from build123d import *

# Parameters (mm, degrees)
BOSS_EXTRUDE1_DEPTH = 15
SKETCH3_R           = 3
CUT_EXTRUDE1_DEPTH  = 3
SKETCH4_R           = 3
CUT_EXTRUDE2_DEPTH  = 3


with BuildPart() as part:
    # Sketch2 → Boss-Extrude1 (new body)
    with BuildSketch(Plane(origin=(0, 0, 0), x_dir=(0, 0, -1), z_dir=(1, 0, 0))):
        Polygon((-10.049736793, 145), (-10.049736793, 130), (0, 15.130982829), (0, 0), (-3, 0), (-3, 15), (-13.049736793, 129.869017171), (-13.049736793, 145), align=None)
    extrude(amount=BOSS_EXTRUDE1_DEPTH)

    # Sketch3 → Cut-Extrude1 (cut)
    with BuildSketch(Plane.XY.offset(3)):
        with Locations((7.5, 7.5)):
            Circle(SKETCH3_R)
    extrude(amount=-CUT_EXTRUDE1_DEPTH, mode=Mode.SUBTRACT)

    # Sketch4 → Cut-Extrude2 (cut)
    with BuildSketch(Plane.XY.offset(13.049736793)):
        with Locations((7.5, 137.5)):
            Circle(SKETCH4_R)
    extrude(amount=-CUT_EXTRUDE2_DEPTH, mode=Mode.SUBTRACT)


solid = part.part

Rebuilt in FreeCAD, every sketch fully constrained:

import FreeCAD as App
import Part
import Sketcher

V = App.Vector
Q = App.Units.Quantity


def add_polygon(sketch, points):
    """Adds a closed chain of lines whose ends are joined by coincident constraints."""
    first, n = sketch.GeometryCount, len(points)
    for a, b in zip(points, points[1:] + points[:1]):
        sketch.addGeometry(Part.LineSegment(App.Vector(*a, 0), App.Vector(*b, 0)), False)
    for i in range(n):
        sketch.addConstraint(Sketcher.Constraint("Coincident", first + i, 2, first + (i + 1) % n, 1))

doc = App.newDocument("Part")
body = doc.addObject("PartDesign::Body", "Body")

# Sketch on YZ plane
sketch1 = doc.addObject("Sketcher::SketchObject", "Sketch")
body.addObject(sketch1)
sketch1.AttachmentSupport = (doc.YZ_Plane, [""])
sketch1.MapMode = "FlatFace"
add_polygon(sketch1, [(130, 10.049737), (145, 10.049737), (145, 13.049737), (129.869017, 13.049737), (15, 3), (0, 3), (0, 0), (15.130983, 0)])  # lines 0-7
sketch1.addConstraint([
    Sketcher.Constraint("Horizontal", 0),
    Sketcher.Constraint("Vertical", 1),
    Sketcher.Constraint("Horizontal", 2),
    Sketcher.Constraint("Horizontal", 4),
    Sketcher.Constraint("Vertical", 5),
    Sketcher.Constraint("Horizontal", 6),
    Sketcher.Constraint("Coincident", 5, 2, -1, 1),
    Sketcher.Constraint("Parallel", 3, 7),
    Sketcher.Constraint("Equal", 0, 4),
    Sketcher.Constraint("Equal", 2, 6),
    Sketcher.Constraint("DistanceX", 0, 1, 0, 2, Q("15 mm")),
    Sketcher.Constraint("DistanceY", 1, 1, 1, 2, Q("3 mm")),
    Sketcher.Constraint("Angle", 3, Q("-175 deg")),
    Sketcher.Constraint("DistanceX", -1, 1, 0, 2, Q("145 mm")),
    Sketcher.Constraint("Distance", 3, Q("115.307798 mm")),
])
pad1 = doc.addObject("PartDesign::Pad", "Pad")
body.addObject(pad1)
pad1.Profile = sketch1
pad1.Length = 15

# Sketch on XY plane
sketch2 = doc.addObject("Sketcher::SketchObject", "Sketch001")
body.addObject(sketch2)
sketch2.AttachmentSupport = (doc.XY_Plane, [""])
sketch2.MapMode = "FlatFace"
sketch2.AttachmentOffset = App.Placement(V(0, 0, 3), App.Rotation())
sketch2.addGeometry(Part.Circle(V(7.5, 7.5, 0), V(0, 0, 1), 3), False)
sketch2.addConstraint([
    Sketcher.Constraint("Diameter", 0, Q("6 mm")),
    Sketcher.Constraint("DistanceX", -1, 1, 0, 3, Q("7.5 mm")),
    Sketcher.Constraint("DistanceY", -1, 1, 0, 3, Q("7.5 mm")),
])
pocket1 = doc.addObject("PartDesign::Pocket", "Pocket")
body.addObject(pocket1)
pocket1.Profile = sketch2
pocket1.Length = 3

# Sketch on XY plane
sketch3 = doc.addObject("Sketcher::SketchObject", "Sketch002")
body.addObject(sketch3)
sketch3.AttachmentSupport = (doc.XY_Plane, [""])
sketch3.MapMode = "FlatFace"
sketch3.AttachmentOffset = App.Placement(V(0, 0, 13.049737), App.Rotation())
sketch3.addGeometry(Part.Circle(V(7.5, 137.5, 0), V(0, 0, 1), 3), False)
sketch3.addConstraint([
    Sketcher.Constraint("Diameter", 0, Q("6 mm")),
    Sketcher.Constraint("DistanceX", -1, 1, 0, 3, Q("7.5 mm")),
    Sketcher.Constraint("DistanceY", -1, 1, 0, 3, Q("137.5 mm")),
])
pocket2 = doc.addObject("PartDesign::Pocket", "Pocket001")
body.addObject(pocket2)
pocket2.Profile = sketch3
pocket2.Length = 3

doc.recompute()
